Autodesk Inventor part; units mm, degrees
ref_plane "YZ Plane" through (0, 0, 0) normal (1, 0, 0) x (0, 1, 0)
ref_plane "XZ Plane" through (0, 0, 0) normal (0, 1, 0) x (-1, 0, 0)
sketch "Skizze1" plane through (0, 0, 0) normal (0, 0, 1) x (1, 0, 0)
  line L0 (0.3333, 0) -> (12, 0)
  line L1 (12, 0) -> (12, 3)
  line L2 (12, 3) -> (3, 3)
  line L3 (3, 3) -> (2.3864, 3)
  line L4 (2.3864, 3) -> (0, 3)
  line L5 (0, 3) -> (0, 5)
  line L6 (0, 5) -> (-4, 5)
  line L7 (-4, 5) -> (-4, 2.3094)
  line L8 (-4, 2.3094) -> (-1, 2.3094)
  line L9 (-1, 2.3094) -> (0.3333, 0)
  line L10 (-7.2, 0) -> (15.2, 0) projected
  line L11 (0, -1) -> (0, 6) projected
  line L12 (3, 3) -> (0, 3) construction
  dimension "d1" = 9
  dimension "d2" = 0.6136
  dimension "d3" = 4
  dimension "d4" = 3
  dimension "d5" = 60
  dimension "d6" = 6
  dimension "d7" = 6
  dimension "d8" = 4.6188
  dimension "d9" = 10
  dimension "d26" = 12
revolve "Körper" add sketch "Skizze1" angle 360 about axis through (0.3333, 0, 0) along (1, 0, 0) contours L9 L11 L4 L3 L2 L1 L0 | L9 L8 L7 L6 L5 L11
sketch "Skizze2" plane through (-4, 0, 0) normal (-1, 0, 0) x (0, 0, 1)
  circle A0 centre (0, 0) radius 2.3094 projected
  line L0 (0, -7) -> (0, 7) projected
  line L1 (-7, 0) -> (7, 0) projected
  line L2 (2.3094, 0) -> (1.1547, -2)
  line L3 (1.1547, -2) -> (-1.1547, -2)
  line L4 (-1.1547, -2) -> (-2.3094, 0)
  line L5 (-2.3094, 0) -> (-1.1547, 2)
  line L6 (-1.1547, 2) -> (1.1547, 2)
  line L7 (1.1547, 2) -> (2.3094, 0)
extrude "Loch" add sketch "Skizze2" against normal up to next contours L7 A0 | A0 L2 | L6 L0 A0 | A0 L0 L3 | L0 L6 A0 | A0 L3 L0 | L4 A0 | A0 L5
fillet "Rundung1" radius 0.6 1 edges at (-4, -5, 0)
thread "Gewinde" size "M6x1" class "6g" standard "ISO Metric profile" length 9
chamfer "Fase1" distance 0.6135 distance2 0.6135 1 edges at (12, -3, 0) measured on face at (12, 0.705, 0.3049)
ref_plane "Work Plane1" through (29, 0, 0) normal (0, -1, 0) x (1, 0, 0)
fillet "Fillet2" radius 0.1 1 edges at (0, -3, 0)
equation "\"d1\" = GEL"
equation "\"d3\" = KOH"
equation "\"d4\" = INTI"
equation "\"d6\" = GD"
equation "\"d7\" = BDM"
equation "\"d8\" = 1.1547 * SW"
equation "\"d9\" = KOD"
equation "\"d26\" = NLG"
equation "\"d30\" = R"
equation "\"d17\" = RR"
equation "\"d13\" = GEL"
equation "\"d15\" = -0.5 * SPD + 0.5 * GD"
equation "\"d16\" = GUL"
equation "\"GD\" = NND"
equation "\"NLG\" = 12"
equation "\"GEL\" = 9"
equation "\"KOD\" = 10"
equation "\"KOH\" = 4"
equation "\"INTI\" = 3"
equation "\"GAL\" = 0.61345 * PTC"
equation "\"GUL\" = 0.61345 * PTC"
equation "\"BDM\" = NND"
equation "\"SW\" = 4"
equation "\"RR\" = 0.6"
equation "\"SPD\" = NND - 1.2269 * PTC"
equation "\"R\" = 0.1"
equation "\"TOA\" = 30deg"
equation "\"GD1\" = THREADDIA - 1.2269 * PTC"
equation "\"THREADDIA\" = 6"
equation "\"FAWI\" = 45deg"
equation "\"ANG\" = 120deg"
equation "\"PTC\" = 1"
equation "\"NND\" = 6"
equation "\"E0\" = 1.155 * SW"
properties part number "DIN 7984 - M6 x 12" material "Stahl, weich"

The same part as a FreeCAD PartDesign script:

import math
import FreeCAD as App
import Part
import Sketcher
Q = App.Units.Quantity


def edges_at(feature, points):
    """Names of the edges that pass closest to the given points."""
    edges = feature.Shape.Edges
    near = lambda p: min(range(len(edges)), key=lambda i: edges[i].distToShape(Part.Vertex(*p))[0])
    return sorted({f"Edge{near(p) + 1}" for p in points})


def add_polygon(sketch, points):
    """Adds a closed chain of lines whose ends are joined by coincident constraints."""
    first, n = sketch.GeometryCount, len(points)
    for a, b in zip(points, points[1:] + points[:1]):
        sketch.addGeometry(Part.LineSegment(App.Vector(*a, 0), App.Vector(*b, 0)), False)
    for i in range(n):
        sketch.addConstraint(Sketcher.Constraint("Coincident", first + i, 2, first + (i + 1) % n, 1))

doc = App.newDocument("Part")
body = doc.addObject("PartDesign::Body", "Body")

sketch1 = body.newObject("Sketcher::SketchObject", "Sketch")
sketch1.AttachmentSupport = (doc.getObject("XY_Plane"), [""])
sketch1.MapMode = "FlatFace"
add_polygon(sketch1, [(0.3, 0), (12, 0), (12, 3), (0, 3), (0, 5), (-4, 5), (-4, 2.3), (-1, 2.3)])
sketch1.addConstraint([
    Sketcher.Constraint("Horizontal", 0),
    Sketcher.Constraint("Vertical", 1),
    Sketcher.Constraint("Horizontal", 2),
    Sketcher.Constraint("Vertical", 3),
    Sketcher.Constraint("Horizontal", 4),
    Sketcher.Constraint("Vertical", 5),
    Sketcher.Constraint("Horizontal", 6),
    Sketcher.Constraint("PointOnObject", 0, 2, -1),
    Sketcher.Constraint("PointOnObject", 2, 2, -2),
    Sketcher.Constraint("Equal", 6, 1),
    Sketcher.Constraint("DistanceX", 2, 2, 2, 1, Q("12 mm")),
    Sketcher.Constraint("DistanceX", 4, 2, 4, 1, Q("4 mm")),
    Sketcher.Constraint("DistanceX", 6, 1, 6, 2, Q("3 mm")),
    Sketcher.Constraint("DistanceY", 3, 1, 3, 2, Q("2 mm")),
    Sketcher.Constraint("Angle", 7, Q("-60.0006 deg")),
    Sketcher.Constraint("DistanceX", 0, 1, 0, 2, Q("11.6667 mm")),
])
revolution = body.newObject("PartDesign::Revolution", "Revolution")
revolution.Profile = sketch1
revolution.ReferenceAxis = (sketch1, ["H_Axis"])
revolution.Angle = 360

sketch2 = body.newObject("Sketcher::SketchObject", "Sketch001")
sketch2.AttachmentSupport = (doc.getObject("YZ_Plane"), [""])
sketch2.MapMode = "FlatFace"
sketch2.AttachmentOffset = App.Placement(App.Vector(0, 0, -4), App.Rotation())
sketch2.addGeometry([
    Part.LineSegment(App.Vector(2, 1.2, 0), App.Vector(0, 2.3, 0)),
    Part.ArcOfCircle(Part.Circle(App.Vector(0, 0, 0), App.Vector(0, 0, 1), 2.3), math.radians(30), math.radians(90)),
    Part.ArcOfCircle(Part.Circle(App.Vector(0, 0, 0), App.Vector(0, 0, 1), 2.3), math.radians(90), math.radians(150)),
    Part.LineSegment(App.Vector(0, 2.3, 0), App.Vector(-2, 1.2, 0)),
    Part.ArcOfCircle(Part.Circle(App.Vector(0, 0, 0), App.Vector(0, 0, 1), 2.3), math.radians(-30), math.radians(30)),
    Part.LineSegment(App.Vector(2, -1.2, 0), App.Vector(2, 1.2, 0)),
    Part.LineSegment(App.Vector(-2, 1.2, 0), App.Vector(-2, -1.2, 0)),
    Part.ArcOfCircle(Part.Circle(App.Vector(0, 0, 0), App.Vector(0, 0, 1), 2.3), math.radians(150), math.radians(210)),
    Part.LineSegment(App.Vector(-2, -1.2, 0), App.Vector(0, -2.3, 0)),
    Part.ArcOfCircle(Part.Circle(App.Vector(0, 0, 0), App.Vector(0, 0, 1), 2.3), math.radians(-150), math.radians(-90)),
    Part.ArcOfCircle(Part.Circle(App.Vector(0, 0, 0), App.Vector(0, 0, 1), 2.3), math.radians(-90), math.radians(-30)),
    Part.LineSegment(App.Vector(0, -2.3, 0), App.Vector(2, -1.2, 0)),
], False)
sketch2.addConstraint([
    Sketcher.Constraint("Coincident", 0, 1, 1, 1),
    Sketcher.Constraint("Coincident", 1, 2, 0, 2),
    Sketcher.Constraint("Coincident", 2, 1, 3, 1),
    Sketcher.Constraint("Coincident", 3, 2, 2, 2),
    Sketcher.Constraint("Coincident", 4, 1, 5, 1),
    Sketcher.Constraint("Coincident", 5, 2, 4, 2),
    Sketcher.Constraint("Coincident", 6, 1, 7, 1),
    Sketcher.Constraint("Coincident", 7, 2, 6, 2),
    Sketcher.Constraint("Coincident", 8, 1, 9, 1),
    Sketcher.Constraint("Coincident", 9, 2, 8, 2),
    Sketcher.Constraint("Coincident", 10, 1, 11, 1),
    Sketcher.Constraint("Coincident", 11, 2, 10, 2),
    Sketcher.Constraint("Vertical", 5),
    Sketcher.Constraint("Vertical", 6),
    Sketcher.Constraint("Coincident", 1, 3, -1, 1),
    Sketcher.Constraint("Coincident", 2, 3, -1, 1),
    Sketcher.Constraint("Coincident", 4, 3, -1, 1),
    Sketcher.Constraint("Coincident", 7, 3, -1, 1),
    Sketcher.Constraint("Coincident", 9, 3, -1, 1),
    Sketcher.Constraint("Coincident", 10, 3, -1, 1),
    Sketcher.Constraint("Coincident", 2, 1, 1, 2),
    Sketcher.Constraint("Coincident", 5, 2, 0, 1),
    Sketcher.Constraint("Coincident", 6, 1, 3, 2),
    Sketcher.Constraint("Coincident", 8, 1, 7, 2),
    Sketcher.Constraint("Coincident", 10, 1, 9, 2),
    Sketcher.Constraint("PointOnObject", 1, 2, -2),
    Sketcher.Constraint("PointOnObject", 9, 2, -2),
    Sketcher.Constraint("Parallel", 0, 8),
    Sketcher.Constraint("Parallel", 3, 11),
    Sketcher.Constraint("Angle", 0, Q("150 deg")),
    Sketcher.Constraint("DistanceX", -1, 1, 0, 1, Q("2 mm")),
])
pad1 = body.newObject("PartDesign::Pad", "Pad")
pad1.Profile = sketch2
pad1.Length = 3.1786
doc.recompute()

fillet = body.newObject("PartDesign::Fillet", "Fillet")
fillet.Base = (pad1, edges_at(pad1, [(-4, -5, 0)]))
fillet.Radius = 0.6
doc.recompute()

chamfer = body.newObject("PartDesign::Chamfer", "Chamfer")
chamfer.Base = (fillet, edges_at(fillet, [(12, -3, 0)]))
chamfer.ChamferType = "Two distances"
chamfer.Size = 0.6135
chamfer.Size2 = 0.6135
doc.recompute()

fillet2 = body.newObject("PartDesign::Fillet", "Fillet001")
fillet2.Base = (chamfer, edges_at(chamfer, [(0, -3, 0)]))
fillet2.Radius = 0.1

doc.recompute()
